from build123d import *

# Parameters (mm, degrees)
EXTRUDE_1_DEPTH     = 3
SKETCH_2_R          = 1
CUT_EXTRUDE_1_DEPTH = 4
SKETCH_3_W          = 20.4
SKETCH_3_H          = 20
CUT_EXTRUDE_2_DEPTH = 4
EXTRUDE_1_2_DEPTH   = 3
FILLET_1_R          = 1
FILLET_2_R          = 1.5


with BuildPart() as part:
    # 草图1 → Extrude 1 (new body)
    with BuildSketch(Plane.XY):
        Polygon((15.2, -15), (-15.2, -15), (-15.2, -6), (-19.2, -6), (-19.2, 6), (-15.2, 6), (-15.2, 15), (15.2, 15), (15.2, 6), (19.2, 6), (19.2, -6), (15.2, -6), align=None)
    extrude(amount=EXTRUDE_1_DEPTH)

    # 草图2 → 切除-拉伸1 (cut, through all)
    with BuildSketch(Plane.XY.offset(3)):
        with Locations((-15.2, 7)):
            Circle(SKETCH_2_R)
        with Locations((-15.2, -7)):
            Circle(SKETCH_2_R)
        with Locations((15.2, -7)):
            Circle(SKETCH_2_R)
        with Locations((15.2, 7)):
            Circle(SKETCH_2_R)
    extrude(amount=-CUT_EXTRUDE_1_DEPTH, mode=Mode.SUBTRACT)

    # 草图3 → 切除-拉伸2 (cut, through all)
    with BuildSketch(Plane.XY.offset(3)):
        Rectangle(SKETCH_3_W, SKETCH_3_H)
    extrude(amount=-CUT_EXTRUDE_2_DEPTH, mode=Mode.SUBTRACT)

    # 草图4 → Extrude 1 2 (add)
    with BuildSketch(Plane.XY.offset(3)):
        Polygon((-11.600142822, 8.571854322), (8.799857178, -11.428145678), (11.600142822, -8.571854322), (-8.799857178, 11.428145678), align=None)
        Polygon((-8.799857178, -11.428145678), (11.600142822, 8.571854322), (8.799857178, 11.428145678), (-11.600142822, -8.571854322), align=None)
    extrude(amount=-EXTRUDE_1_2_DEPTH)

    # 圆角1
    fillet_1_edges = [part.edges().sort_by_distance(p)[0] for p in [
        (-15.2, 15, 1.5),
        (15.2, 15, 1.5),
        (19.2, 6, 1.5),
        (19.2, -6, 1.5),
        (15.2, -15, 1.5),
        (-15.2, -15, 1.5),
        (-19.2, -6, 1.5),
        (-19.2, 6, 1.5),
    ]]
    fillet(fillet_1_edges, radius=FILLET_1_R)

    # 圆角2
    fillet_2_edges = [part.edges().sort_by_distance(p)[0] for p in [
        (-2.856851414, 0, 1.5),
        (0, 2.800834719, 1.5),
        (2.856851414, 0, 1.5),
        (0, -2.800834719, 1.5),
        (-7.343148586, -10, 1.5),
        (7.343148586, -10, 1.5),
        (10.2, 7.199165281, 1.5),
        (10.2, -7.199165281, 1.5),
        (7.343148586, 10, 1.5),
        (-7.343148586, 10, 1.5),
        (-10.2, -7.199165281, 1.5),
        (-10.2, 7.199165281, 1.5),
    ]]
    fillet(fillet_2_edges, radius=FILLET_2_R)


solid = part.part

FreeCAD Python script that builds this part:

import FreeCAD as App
import Part
import Sketcher
Q = App.Units.Quantity


def edges_at(feature, points):
    """Names of the edges that pass closest to the given points."""
    edges = feature.Shape.Edges
    near = lambda p: min(range(len(edges)), key=lambda i: edges[i].distToShape(Part.Vertex(*p))[0])
    return sorted({f"Edge{near(p) + 1}" for p in points})

doc = App.newDocument("Part")
params = doc.addObject("Spreadsheet::Sheet", "Params")
for row, (alias, value) in enumerate([
    ("sketch1_width", "4 mm"),
    ("sketch1_height", "9 mm"),
    ("sketch1_height2", "12 mm"),
    ("sketch1_width2", "30.4 mm"),
    ("pad1_length", "3 mm"),
    ("sketch2_diameter", "2 mm"),
    ("sketch3_height", "20 mm"),
    ("sketch3_width", "20.4 mm"),
    ("sketch4_length", "4 mm"),
    ("pad2_length", "3 mm"),
    ("fillet_radius", "1 mm"),
    ("fillet2_radius", "1.5 mm"),
], start=1):
    params.set(f"A{row}", alias)
    params.set(f"B{row}", "=" + value)
    params.setAlias(f"B{row}", alias)

body = doc.addObject("PartDesign::Body", "Body")

# Sketch on XY plane
sketch1 = body.newObject("Sketcher::SketchObject", "Sketch")
sketch1.AttachmentSupport = (doc.getObject("XY_Plane"), [""])
sketch1.MapMode = "FlatFace"
sketch1.addGeometry(Part.LineSegment(App.Vector(-15.2, -15, 0), App.Vector(15.2, -15, 0)), False)
sketch1.addGeometry(Part.LineSegment(App.Vector(15.2, -15, 0), App.Vector(15.2, -6, 0)), False)
sketch1.addGeometry(Part.LineSegment(App.Vector(15.2, -6, 0), App.Vector(19.2, -6, 0)), False)
sketch1.addGeometry(Part.LineSegment(App.Vector(19.2, -6, 0), App.Vector(19.2, 6, 0)), False)
sketch1.addGeometry(Part.LineSegment(App.Vector(19.2, 6, 0), App.Vector(15.2, 6, 0)), False)
sketch1.addGeometry(Part.LineSegment(App.Vector(15.2, 6, 0), App.Vector(15.2, 15, 0)), False)
sketch1.addGeometry(Part.LineSegment(App.Vector(15.2, 15, 0), App.Vector(-15.2, 15, 0)), False)
sketch1.addGeometry(Part.LineSegment(App.Vector(-15.2, 15, 0), App.Vector(-15.2, 6, 0)), False)
sketch1.addGeometry(Part.LineSegment(App.Vector(-15.2, 6, 0), App.Vector(-19.2, 6, 0)), False)
sketch1.addGeometry(Part.LineSegment(App.Vector(-19.2, 6, 0), App.Vector(-19.2, -6, 0)), False)
sketch1.addGeometry(Part.LineSegment(App.Vector(-19.2, -6, 0), App.Vector(-15.2, -6, 0)), False)
sketch1.addGeometry(Part.LineSegment(App.Vector(-15.2, -6, 0), App.Vector(-15.2, -15, 0)), False)
sketch1.addConstraint(Sketcher.Constraint("Coincident", 0, 2, 1, 1))
sketch1.addConstraint(Sketcher.Constraint("Coincident", 1, 2, 2, 1))
sketch1.addConstraint(Sketcher.Constraint("Coincident", 2, 2, 3, 1))
sketch1.addConstraint(Sketcher.Constraint("Coincident", 3, 2, 4, 1))
sketch1.addConstraint(Sketcher.Constraint("Coincident", 4, 2, 5, 1))
sketch1.addConstraint(Sketcher.Constraint("Coincident", 5, 2, 6, 1))
sketch1.addConstraint(Sketcher.Constraint("Coincident", 6, 2, 7, 1))
sketch1.addConstraint(Sketcher.Constraint("Coincident", 7, 2, 8, 1))
sketch1.addConstraint(Sketcher.Constraint("Coincident", 8, 2, 9, 1))
sketch1.addConstraint(Sketcher.Constraint("Coincident", 9, 2, 10, 1))
sketch1.addConstraint(Sketcher.Constraint("Coincident", 10, 2, 11, 1))
sketch1.addConstraint(Sketcher.Constraint("Coincident", 11, 2, 0, 1))
sketch1.addConstraint(Sketcher.Constraint("Horizontal", 0))
sketch1.addConstraint(Sketcher.Constraint("Vertical", 1))
sketch1.addConstraint(Sketcher.Constraint("Horizontal", 2))
sketch1.addConstraint(Sketcher.Constraint("Vertical", 3))
sketch1.addConstraint(Sketcher.Constraint("Horizontal", 4))
sketch1.addConstraint(Sketcher.Constraint("Vertical", 5))
sketch1.addConstraint(Sketcher.Constraint("Horizontal", 6))
sketch1.addConstraint(Sketcher.Constraint("Vertical", 7))
sketch1.addConstraint(Sketcher.Constraint("Horizontal", 8))
sketch1.addConstraint(Sketcher.Constraint("Vertical", 9))
sketch1.addConstraint(Sketcher.Constraint("Horizontal", 10))
sketch1.addConstraint(Sketcher.Constraint("Vertical", 11))
sketch1.addConstraint(Sketcher.Constraint("Symmetric", 0, 2, 6, 2, -1, 1))
sketch1.addConstraint(Sketcher.Constraint("Symmetric", 2, 2, 8, 2, -1, 1))
sketch1.addConstraint(Sketcher.Constraint("Symmetric", 4, 2, 10, 2, -1, 1))
sketch1.addConstraint(Sketcher.Constraint("Symmetric", 4, 2, 7, 2, -2))
sketch1.addConstraint(Sketcher.Constraint("DistanceX", 2, 1, 2, 2, Q("4 mm")))
sketch1.addConstraint(Sketcher.Constraint("DistanceY", 1, 1, 1, 2, Q("9 mm")))
sketch1.addConstraint(Sketcher.Constraint("DistanceY", 3, 1, 3, 2, Q("12 mm")))
sketch1.addConstraint(Sketcher.Constraint("DistanceX", 0, 1, 0, 2, Q("30.4 mm")))
sketch1.setExpression("Constraints[28]", "Params.sketch1_width")
sketch1.setExpression("Constraints[29]", "Params.sketch1_height")
sketch1.setExpression("Constraints[30]", "Params.sketch1_height2")
sketch1.setExpression("Constraints[31]", "Params.sketch1_width2")
pad1 = body.newObject("PartDesign::Pad", "Pad")
pad1.Profile = sketch1
pad1.setExpression("Length", "Params.pad1_length")

# Sketch on XY plane
sketch2 = body.newObject("Sketcher::SketchObject", "Sketch001")
sketch2.AttachmentSupport = (doc.getObject("XY_Plane"), [""])
sketch2.MapMode = "FlatFace"
sketch2.AttachmentOffset = App.Placement(App.Vector(0, 0, 3), App.Rotation())
sketch2.addGeometry(Part.Circle(App.Vector(-15.2, 7, 0), App.Vector(0, 0, 1), 1), False)
sketch2.addGeometry(Part.Circle(App.Vector(-15.2, -7, 0), App.Vector(0, 0, 1), 1), False)
sketch2.addGeometry(Part.Circle(App.Vector(15.2, -7, 0), App.Vector(0, 0, 1), 1), False)
sketch2.addGeometry(Part.Circle(App.Vector(15.2, 7, 0), App.Vector(0, 0, 1), 1), False)
sketch2.addConstraint(Sketcher.Constraint("Equal", 0, 1))
sketch2.addConstraint(Sketcher.Constraint("Equal", 1, 2))
sketch2.addConstraint(Sketcher.Constraint("Equal", 2, 3))
sketch2.addConstraint(Sketcher.Constraint("Symmetric", 0, 3, 2, 3, -1, 1))
sketch2.addConstraint(Sketcher.Constraint("Symmetric", 1, 3, 3, 3, -1, 1))
sketch2.addConstraint(Sketcher.Constraint("Symmetric", 1, 3, 2, 3, -2))
sketch2.addConstraint(Sketcher.Constraint("Diameter", 0, Q("2 mm")))
sketch2.addConstraint(Sketcher.Constraint("DistanceY", -1, 1, 0, 3, Q("7 mm")))
sketch2.addConstraint(Sketcher.Constraint("DistanceX", 0, 3, -1, 1, Q("15.2 mm")))
sketch2.setExpression("Constraints[6]", "Params.sketch2_diameter")
pocket1 = body.newObject("PartDesign::Pocket", "Pocket")
pocket1.Profile = sketch2
pocket1.Type = "ThroughAll"

# Sketch on XY plane
sketch3 = body.newObject("Sketcher::SketchObject", "Sketch002")
sketch3.AttachmentSupport = (doc.getObject("XY_Plane"), [""])
sketch3.MapMode = "FlatFace"
sketch3.AttachmentOffset = App.Placement(App.Vector(0, 0, 3), App.Rotation())
sketch3.addGeometry(Part.LineSegment(App.Vector(-10.2, 10, 0), App.Vector(-10.2, -10, 0)), False)
sketch3.addGeometry(Part.LineSegment(App.Vector(-10.2, -10, 0), App.Vector(10.2, -10, 0)), False)
sketch3.addGeometry(Part.LineSegment(App.Vector(10.2, -10, 0), App.Vector(10.2, 10, 0)), False)
sketch3.addGeometry(Part.LineSegment(App.Vector(10.2, 10, 0), App.Vector(-10.2, 10, 0)), False)
sketch3.addConstraint(Sketcher.Constraint("Coincident", 0, 2, 1, 1))
sketch3.addConstraint(Sketcher.Constraint("Coincident", 1, 2, 2, 1))
sketch3.addConstraint(Sketcher.Constraint("Coincident", 2, 2, 3, 1))
sketch3.addConstraint(Sketcher.Constraint("Coincident", 3, 2, 0, 1))
sketch3.addConstraint(Sketcher.Constraint("Vertical", 0))
sketch3.addConstraint(Sketcher.Constraint("Horizontal", 1))
sketch3.addConstraint(Sketcher.Constraint("Vertical", 2))
sketch3.addConstraint(Sketcher.Constraint("Horizontal", 3))
sketch3.addConstraint(Sketcher.Constraint("Symmetric", 0, 2, 2, 2, -1, 1))
sketch3.addConstraint(Sketcher.Constraint("DistanceY", 0, 2, 0, 1, Q("20 mm")))
sketch3.addConstraint(Sketcher.Constraint("DistanceX", 1, 1, 1, 2, Q("20.4 mm")))
sketch3.setExpression("Constraints[9]", "Params.sketch3_height")
sketch3.setExpression("Constraints[10]", "Params.sketch3_width")
pocket2 = body.newObject("PartDesign::Pocket", "Pocket001")
pocket2.Profile = sketch3
pocket2.Type = "ThroughAll"

# Sketch on XY plane
sketch4 = body.newObject("Sketcher::SketchObject", "Sketch003")
sketch4.AttachmentSupport = (doc.getObject("XY_Plane"), [""])
sketch4.MapMode = "FlatFace"
sketch4.AttachmentOffset = App.Placement(App.Vector(0, 0, 3), App.Rotation())
sketch4.addGeometry(Part.LineSegment(App.Vector(-8.799857, 11.428146, 0), App.Vector(-11.600143, 8.571854, 0)), False)
sketch4.addGeometry(Part.LineSegment(App.Vector(-11.600143, 8.571854, 0), App.Vector(-2.856851, 0, 0)), False)
sketch4.addGeometry(Part.LineSegment(App.Vector(-2.856851, 0, 0), App.Vector(-11.600143, -8.571854, 0)), False)
sketch4.addGeometry(Part.LineSegment(App.Vector(-11.600143, -8.571854, 0), App.Vector(-8.799857, -11.428146, 0)), False)
sketch4.addGeometry(Part.LineSegment(App.Vector(-8.799857, -11.428146, 0), App.Vector(0, -2.800835, 0)), False)
sketch4.addGeometry(Part.LineSegment(App.Vector(0, -2.800835, 0), App.Vector(8.799857, -11.428146, 0)), False)
sketch4.addGeometry(Part.LineSegment(App.Vector(8.799857, -11.428146, 0), App.Vector(11.600143, -8.571854, 0)), False)
sketch4.addGeometry(Part.LineSegment(App.Vector(11.600143, -8.571854, 0), App.Vector(2.856851, 0, 0)), False)
sketch4.addGeometry(Part.LineSegment(App.Vector(2.856851, 0, 0), App.Vector(11.600143, 8.571854, 0)), False)
sketch4.addGeometry(Part.LineSegment(App.Vector(11.600143, 8.571854, 0), App.Vector(8.799857, 11.428146, 0)), False)
sketch4.addGeometry(Part.LineSegment(App.Vector(8.799857, 11.428146, 0), App.Vector(0, 2.800835, 0)), False)
sketch4.addGeometry(Part.LineSegment(App.Vector(0, 2.800835, 0), App.Vector(-8.799857, 11.428146, 0)), False)
sketch4.addConstraint(Sketcher.Constraint("Coincident", 0, 2, 1, 1))
sketch4.addConstraint(Sketcher.Constraint("Coincident", 1, 2, 2, 1))
sketch4.addConstraint(Sketcher.Constraint("Coincident", 2, 2, 3, 1))
sketch4.addConstraint(Sketcher.Constraint("Coincident", 3, 2, 4, 1))
sketch4.addConstraint(Sketcher.Constraint("Coincident", 4, 2, 5, 1))
sketch4.addConstraint(Sketcher.Constraint("Coincident", 5, 2, 6, 1))
sketch4.addConstraint(Sketcher.Constraint("Coincident", 6, 2, 7, 1))
sketch4.addConstraint(Sketcher.Constraint("Coincident", 7, 2, 8, 1))
sketch4.addConstraint(Sketcher.Constraint("Coincident", 8, 2, 9, 1))
sketch4.addConstraint(Sketcher.Constraint("Coincident", 9, 2, 10, 1))
sketch4.addConstraint(Sketcher.Constraint("Coincident", 10, 2, 11, 1))
sketch4.addConstraint(Sketcher.Constraint("Coincident", 11, 2, 0, 1))
sketch4.addConstraint(Sketcher.Constraint("Symmetric", 0, 2, 6, 2, -1, 1))
sketch4.addConstraint(Sketcher.Constraint("Symmetric", 1, 2, 7, 2, -1, 1))
sketch4.addConstraint(Sketcher.Constraint("Symmetric", 2, 2, 8, 2, -1, 1))
sketch4.addConstraint(Sketcher.Constraint("Symmetric", 3, 2, 9, 2, -1, 1))
sketch4.addConstraint(Sketcher.Constraint("Symmetric", 4, 2, 10, 2, -1, 1))
sketch4.addConstraint(Sketcher.Constraint("Symmetric", 5, 2, 11, 2, -1, 1))
sketch4.addConstraint(Sketcher.Constraint("Symmetric", 3, 2, 5, 2, -2))
sketch4.addConstraint(Sketcher.Constraint("Symmetric", 2, 2, 6, 2, -2))
sketch4.addConstraint(Sketcher.Constraint("PointOnObject", 1, 2, -1))
sketch4.addConstraint(Sketcher.Constraint("PointOnObject", 4, 2, -2))
sketch4.addConstraint(Sketcher.Constraint("Perpendicular", 0, 1))
sketch4.addConstraint(Sketcher.Constraint("Perpendicular", 3, 4))
sketch4.addConstraint(Sketcher.Constraint("Distance", 0, Q("4 mm")))
sketch4.addConstraint(Sketcher.Constraint("DistanceY", 3, 2, 0, 2, Q("20 mm")))
sketch4.addConstraint(Sketcher.Constraint("DistanceX", 2, 2, 5, 2, Q("20.4 mm")))
sketch4.addConstraint(Sketcher.Constraint("DistanceX", 1, 2, -1, 1, Q("2.856851 mm")))
sketch4.setExpression("Constraints[24]", "Params.sketch4_length")
pad2 = body.newObject("PartDesign::Pad", "Pad001")
pad2.Profile = sketch4
pad2.setExpression("Length", "Params.pad2_length")
pad2.Reversed = True
doc.recompute()

fillet = body.newObject("PartDesign::Fillet", "Fillet")
fillet.Base = (pad2, edges_at(pad2, [
    (-15.2, 15, 1.5),
    (15.2, 15, 1.5),
    (19.2, 6, 1.5),
    (19.2, -6, 1.5),
    (15.2, -15, 1.5),
    (-15.2, -15, 1.5),
    (-19.2, -6, 1.5),
    (-19.2, 6, 1.5),
]))
fillet.setExpression("Radius", "Params.fillet_radius")
doc.recompute()

fillet2 = body.newObject("PartDesign::Fillet", "Fillet001")
fillet2.Base = (fillet, edges_at(fillet, [
    (-2.857, 0, 1.5),
    (0, 2.801, 1.5),
    (2.857, 0, 1.5),
    (0, -2.801, 1.5),
    (-7.343, -10, 1.5),
    (7.343, -10, 1.5),
    (10.2, 7.199, 1.5),
    (10.2, -7.199, 1.5),
    (7.343, 10, 1.5),
    (-7.343, 10, 1.5),
    (-10.2, -7.199, 1.5),
    (-10.2, 7.199, 1.5),
]))
fillet2.setExpression("Radius", "Params.fillet2_radius")

doc.recompute()
